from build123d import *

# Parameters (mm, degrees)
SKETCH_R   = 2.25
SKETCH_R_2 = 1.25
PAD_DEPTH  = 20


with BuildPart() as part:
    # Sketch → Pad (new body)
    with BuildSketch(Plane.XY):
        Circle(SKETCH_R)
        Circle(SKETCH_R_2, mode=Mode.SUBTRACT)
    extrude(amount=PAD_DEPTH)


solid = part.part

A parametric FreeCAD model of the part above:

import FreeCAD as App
import Part
import Sketcher
from FreeCAD import Vector

doc = App.newDocument("Part")
body = doc.addObject("PartDesign::Body", "Body")

# Sketch on XY plane
sketch1 = body.newObject("Sketcher::SketchObject", "Sketch")
sketch1.AttachmentSupport = (doc.getObject("XY_Plane"), [""])
sketch1.MapMode = "FlatFace"
sketch1.addGeometry([
    Part.Circle(Vector(0, 0, 0), Vector(0, 0, 1), 2.25),
    Part.Circle(Vector(0, 0, 0), Vector(0, 0, 1), 1.25),
], False)
sketch1.addConstraint([
    Sketcher.Constraint("Coincident", 0, 3, -1, 1),
    Sketcher.Constraint("Coincident", 1, 3, -1, 1),
    Sketcher.Constraint("Diameter", 0, 4.5),
    Sketcher.Constraint("Diameter", 1, 2.5),
])
pad1 = body.newObject("PartDesign::Pad", "Pad")
pad1.Profile = sketch1
pad1.Length = 20

doc.recompute()
